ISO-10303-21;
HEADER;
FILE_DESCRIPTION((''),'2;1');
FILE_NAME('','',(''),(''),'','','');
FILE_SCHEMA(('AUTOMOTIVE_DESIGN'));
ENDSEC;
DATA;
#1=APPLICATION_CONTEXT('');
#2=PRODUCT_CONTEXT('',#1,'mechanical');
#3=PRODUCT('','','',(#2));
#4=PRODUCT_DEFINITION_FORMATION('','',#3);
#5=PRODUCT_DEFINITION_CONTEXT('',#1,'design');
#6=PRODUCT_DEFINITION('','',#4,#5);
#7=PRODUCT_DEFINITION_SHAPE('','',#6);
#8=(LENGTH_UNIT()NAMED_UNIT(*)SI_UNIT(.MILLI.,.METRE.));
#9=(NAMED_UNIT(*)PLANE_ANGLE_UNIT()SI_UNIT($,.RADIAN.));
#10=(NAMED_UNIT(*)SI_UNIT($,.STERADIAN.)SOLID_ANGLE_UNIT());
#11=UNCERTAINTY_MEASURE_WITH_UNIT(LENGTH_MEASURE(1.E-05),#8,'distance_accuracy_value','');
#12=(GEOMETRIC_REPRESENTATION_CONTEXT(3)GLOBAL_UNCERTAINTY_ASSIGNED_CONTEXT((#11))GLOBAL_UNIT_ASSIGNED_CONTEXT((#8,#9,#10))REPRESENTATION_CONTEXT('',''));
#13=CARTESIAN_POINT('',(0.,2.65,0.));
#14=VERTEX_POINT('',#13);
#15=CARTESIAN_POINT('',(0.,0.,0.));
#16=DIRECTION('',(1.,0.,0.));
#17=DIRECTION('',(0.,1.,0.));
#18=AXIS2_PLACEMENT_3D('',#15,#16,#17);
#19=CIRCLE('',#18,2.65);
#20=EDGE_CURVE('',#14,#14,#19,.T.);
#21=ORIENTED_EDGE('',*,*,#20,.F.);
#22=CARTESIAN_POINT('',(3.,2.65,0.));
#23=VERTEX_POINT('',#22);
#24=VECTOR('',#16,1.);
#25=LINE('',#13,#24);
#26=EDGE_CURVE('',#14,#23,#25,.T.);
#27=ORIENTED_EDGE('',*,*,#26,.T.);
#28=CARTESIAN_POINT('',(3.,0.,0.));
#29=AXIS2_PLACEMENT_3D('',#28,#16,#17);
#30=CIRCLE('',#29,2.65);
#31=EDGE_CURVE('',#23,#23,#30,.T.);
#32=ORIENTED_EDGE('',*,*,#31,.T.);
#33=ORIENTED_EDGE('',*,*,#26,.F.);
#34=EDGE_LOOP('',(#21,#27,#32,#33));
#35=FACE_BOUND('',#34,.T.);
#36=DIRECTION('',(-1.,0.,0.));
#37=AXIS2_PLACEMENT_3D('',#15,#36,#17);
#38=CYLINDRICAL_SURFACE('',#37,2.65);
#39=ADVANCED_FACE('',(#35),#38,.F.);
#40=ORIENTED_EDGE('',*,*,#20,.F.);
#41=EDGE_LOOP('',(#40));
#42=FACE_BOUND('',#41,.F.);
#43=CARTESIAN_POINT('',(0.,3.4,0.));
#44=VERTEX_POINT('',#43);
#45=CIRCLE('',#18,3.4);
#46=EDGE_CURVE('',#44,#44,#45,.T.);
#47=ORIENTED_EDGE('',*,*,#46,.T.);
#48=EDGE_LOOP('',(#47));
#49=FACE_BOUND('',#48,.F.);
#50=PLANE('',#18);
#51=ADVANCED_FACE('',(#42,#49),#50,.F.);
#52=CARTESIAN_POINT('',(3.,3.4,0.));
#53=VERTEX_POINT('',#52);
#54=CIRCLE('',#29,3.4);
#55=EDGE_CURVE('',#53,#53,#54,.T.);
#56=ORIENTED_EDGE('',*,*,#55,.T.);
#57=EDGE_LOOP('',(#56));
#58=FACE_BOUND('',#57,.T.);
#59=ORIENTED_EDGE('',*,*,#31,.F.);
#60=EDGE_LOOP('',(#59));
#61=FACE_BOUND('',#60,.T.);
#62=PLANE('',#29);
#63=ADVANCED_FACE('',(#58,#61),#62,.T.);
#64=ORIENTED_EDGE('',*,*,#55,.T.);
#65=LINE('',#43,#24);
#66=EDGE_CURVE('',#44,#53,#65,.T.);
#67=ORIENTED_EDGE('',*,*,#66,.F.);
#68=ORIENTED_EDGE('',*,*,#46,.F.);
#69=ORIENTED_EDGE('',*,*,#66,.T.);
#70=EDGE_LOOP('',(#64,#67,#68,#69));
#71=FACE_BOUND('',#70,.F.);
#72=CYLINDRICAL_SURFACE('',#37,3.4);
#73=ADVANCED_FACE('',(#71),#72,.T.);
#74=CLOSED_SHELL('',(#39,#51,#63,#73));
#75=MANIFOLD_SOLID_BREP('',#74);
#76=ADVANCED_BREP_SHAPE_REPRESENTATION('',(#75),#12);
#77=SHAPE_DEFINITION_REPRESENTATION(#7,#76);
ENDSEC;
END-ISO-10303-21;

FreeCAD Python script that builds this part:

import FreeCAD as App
import Part
import Sketcher
Q = App.Units.Quantity

doc = App.newDocument("Part")
body = doc.addObject("PartDesign::Body", "Body")

# Sketch on YZ plane
sketch1 = body.newObject("Sketcher::SketchObject", "Sketch")
sketch1.AttachmentSupport = (doc.getObject("YZ_Plane"), [""])
sketch1.MapMode = "FlatFace"
sketch1.addGeometry([
    Part.Circle(App.Vector(0, 0, 0), App.Vector(0, 0, 1), 3.4),
    Part.Circle(App.Vector(0, 0, 0), App.Vector(0, 0, 1), 2.65),
], False)
sketch1.addConstraint([
    Sketcher.Constraint("Coincident", 0, 3, -1, 1),
    Sketcher.Constraint("Coincident", 1, 3, -1, 1),
    Sketcher.Constraint("Diameter", 0, Q("6.8 mm")),
    Sketcher.Constraint("Diameter", 1, Q("5.3 mm")),
])
pad1 = body.newObject("PartDesign::Pad", "Pad")
pad1.Profile = sketch1
pad1.Length = 3

doc.recompute()
